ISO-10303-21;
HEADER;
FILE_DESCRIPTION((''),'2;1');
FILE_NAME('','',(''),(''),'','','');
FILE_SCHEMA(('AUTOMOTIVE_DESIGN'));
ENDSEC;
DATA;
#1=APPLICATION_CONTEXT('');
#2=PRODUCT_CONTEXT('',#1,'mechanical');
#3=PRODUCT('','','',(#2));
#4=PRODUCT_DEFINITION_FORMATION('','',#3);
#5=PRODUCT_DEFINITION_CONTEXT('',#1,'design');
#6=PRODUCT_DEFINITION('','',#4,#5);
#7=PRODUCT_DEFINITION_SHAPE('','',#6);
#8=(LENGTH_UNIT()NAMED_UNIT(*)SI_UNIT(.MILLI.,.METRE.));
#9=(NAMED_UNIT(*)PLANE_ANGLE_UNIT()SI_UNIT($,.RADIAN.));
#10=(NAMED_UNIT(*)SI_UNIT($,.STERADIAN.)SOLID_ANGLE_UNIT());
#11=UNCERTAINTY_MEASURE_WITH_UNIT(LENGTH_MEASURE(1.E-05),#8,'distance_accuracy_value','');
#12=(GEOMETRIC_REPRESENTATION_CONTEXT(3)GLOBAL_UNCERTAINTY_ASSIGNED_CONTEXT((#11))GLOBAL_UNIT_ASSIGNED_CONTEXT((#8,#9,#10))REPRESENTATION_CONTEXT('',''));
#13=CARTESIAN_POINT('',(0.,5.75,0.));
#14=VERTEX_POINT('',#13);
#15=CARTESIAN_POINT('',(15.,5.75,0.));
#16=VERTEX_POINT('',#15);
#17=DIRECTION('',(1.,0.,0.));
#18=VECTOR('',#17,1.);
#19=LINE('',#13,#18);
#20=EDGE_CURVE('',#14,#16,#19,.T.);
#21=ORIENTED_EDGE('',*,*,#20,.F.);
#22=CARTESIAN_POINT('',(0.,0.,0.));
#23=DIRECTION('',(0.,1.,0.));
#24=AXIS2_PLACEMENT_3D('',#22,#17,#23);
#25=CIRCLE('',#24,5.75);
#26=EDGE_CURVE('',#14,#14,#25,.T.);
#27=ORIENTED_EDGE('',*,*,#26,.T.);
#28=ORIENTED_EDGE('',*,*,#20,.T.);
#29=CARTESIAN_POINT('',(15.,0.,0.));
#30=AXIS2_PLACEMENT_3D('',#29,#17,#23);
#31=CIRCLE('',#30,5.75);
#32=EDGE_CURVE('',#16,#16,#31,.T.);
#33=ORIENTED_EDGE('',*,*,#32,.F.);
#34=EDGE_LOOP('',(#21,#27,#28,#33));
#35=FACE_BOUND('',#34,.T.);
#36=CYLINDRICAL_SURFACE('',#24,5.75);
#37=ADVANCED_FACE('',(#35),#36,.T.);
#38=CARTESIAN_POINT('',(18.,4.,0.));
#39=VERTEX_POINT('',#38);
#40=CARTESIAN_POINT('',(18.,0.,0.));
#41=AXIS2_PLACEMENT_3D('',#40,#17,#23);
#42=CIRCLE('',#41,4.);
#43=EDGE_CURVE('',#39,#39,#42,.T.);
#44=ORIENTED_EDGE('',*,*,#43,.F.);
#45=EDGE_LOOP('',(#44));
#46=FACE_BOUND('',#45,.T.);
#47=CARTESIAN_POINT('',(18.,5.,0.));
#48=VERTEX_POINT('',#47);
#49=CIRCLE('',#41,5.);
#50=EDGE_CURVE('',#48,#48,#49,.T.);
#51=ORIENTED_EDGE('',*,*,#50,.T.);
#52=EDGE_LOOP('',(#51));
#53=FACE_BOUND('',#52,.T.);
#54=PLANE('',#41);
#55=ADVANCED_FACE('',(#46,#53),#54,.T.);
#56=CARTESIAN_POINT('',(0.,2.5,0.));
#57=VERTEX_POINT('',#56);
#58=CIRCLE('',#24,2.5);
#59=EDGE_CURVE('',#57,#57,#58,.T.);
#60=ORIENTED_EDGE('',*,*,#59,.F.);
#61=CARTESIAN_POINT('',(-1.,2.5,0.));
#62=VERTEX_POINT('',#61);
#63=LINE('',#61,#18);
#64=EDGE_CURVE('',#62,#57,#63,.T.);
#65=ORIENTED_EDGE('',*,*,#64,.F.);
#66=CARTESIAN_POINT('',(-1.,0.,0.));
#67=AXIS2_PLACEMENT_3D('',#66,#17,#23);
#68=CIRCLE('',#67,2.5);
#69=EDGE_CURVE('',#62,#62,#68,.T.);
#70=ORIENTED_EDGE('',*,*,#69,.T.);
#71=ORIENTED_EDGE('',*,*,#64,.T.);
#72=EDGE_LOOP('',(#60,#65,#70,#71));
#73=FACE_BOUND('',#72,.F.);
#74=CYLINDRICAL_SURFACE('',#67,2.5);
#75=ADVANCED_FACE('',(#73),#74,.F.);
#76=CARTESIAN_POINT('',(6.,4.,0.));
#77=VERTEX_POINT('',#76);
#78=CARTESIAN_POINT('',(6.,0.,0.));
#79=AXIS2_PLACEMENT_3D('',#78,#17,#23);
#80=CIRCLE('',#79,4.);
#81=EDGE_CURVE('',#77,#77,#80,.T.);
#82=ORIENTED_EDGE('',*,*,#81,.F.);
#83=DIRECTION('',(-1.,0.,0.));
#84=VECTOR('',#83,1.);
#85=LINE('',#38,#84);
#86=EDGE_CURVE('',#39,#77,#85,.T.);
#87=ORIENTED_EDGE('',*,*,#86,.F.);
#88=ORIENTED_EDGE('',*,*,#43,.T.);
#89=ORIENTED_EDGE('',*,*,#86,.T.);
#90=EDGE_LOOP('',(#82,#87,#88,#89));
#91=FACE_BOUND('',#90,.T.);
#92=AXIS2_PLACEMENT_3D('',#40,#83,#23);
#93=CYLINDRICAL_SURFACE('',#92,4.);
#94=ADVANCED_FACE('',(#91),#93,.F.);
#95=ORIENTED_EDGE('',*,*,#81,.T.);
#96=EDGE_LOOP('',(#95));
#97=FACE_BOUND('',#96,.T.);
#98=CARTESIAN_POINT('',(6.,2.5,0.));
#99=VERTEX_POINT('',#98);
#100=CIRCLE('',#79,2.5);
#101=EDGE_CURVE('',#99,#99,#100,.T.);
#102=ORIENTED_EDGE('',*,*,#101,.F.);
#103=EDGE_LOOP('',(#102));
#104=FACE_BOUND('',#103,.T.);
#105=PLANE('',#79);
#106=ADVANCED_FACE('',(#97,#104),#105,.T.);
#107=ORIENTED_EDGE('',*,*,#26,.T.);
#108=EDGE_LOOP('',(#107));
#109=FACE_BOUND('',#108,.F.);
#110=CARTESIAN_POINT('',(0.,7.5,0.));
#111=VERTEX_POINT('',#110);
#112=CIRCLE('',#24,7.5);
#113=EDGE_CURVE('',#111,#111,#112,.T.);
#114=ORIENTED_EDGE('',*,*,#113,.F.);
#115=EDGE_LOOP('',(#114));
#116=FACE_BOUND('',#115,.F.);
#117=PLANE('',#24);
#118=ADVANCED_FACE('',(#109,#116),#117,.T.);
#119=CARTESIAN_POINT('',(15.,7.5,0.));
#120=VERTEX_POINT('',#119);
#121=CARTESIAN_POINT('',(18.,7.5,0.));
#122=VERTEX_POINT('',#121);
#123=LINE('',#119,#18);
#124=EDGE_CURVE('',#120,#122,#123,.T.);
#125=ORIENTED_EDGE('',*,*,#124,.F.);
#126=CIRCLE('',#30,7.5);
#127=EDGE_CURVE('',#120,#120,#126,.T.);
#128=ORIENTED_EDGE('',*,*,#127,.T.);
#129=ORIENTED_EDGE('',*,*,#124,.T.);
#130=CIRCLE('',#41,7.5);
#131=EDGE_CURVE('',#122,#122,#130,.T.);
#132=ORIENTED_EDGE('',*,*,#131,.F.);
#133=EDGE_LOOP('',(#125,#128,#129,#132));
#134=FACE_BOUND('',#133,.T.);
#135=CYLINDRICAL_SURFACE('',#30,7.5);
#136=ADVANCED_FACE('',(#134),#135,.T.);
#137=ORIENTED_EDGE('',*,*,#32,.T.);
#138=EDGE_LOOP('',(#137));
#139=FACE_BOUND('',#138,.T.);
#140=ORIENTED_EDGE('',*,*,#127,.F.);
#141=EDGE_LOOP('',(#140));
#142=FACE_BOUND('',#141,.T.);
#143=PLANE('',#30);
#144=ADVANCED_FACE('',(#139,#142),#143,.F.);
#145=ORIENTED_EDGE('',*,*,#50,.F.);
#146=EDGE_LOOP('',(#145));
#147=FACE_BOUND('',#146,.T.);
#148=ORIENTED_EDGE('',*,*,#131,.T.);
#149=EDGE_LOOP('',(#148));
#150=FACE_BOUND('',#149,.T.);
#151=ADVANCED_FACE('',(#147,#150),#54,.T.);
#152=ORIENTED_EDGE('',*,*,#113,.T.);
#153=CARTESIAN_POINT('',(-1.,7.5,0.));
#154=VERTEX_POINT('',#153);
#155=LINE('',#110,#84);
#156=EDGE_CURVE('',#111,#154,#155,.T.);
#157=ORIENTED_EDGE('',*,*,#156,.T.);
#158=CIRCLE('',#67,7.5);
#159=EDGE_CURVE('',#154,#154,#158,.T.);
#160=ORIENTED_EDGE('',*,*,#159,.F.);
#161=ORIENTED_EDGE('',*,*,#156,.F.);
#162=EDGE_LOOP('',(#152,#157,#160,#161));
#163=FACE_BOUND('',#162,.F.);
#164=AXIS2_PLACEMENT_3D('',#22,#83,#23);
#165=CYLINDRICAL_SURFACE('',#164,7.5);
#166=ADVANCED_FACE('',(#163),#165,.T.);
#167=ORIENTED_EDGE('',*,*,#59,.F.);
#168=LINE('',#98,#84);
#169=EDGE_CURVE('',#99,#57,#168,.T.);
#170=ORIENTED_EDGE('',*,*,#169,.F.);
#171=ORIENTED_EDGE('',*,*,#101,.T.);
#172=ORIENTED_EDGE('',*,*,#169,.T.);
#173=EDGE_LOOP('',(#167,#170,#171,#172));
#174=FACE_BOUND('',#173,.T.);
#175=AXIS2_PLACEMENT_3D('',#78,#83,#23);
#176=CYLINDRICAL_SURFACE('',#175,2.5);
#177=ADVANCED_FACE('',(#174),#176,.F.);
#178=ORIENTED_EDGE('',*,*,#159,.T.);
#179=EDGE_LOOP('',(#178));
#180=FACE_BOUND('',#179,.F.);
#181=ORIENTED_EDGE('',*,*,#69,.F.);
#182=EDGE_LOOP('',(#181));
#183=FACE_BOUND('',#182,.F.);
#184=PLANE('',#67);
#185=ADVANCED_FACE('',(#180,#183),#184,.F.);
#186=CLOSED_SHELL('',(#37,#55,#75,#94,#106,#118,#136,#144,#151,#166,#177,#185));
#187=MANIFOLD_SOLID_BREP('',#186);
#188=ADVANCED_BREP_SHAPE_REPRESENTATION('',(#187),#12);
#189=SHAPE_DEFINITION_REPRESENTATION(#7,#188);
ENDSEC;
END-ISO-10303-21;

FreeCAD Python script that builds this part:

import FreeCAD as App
import Part
import Sketcher

doc = App.newDocument("Part")
body = doc.addObject("PartDesign::Body", "Body")

# Sketch on XY plane
sketch1 = doc.addObject("Sketcher::SketchObject", "Sketch")
body.addObject(sketch1)
sketch1.AttachmentSupport = (doc.XY_Plane, [""])
sketch1.MapMode = "FlatFace"
sketch1.addGeometry([
    Part.LineSegment(App.Vector(15, 5.8, 0), App.Vector(0, 5.8, 0)),  # 0
    Part.LineSegment(App.Vector(0, 5.8, 0), App.Vector(0, 7.5, 0)),  # 1
    Part.LineSegment(App.Vector(0, 7.5, 0), App.Vector(-1, 7.5, 0)),  # 2
    Part.LineSegment(App.Vector(-1, 7.5, 0), App.Vector(-1, 2.5, 0)),  # 3
    Part.LineSegment(App.Vector(-1, 2.5, 0), App.Vector(6, 2.5, 0)),  # 4
    Part.LineSegment(App.Vector(6, 2.5, 0), App.Vector(6, 4, 0)),  # 5
    Part.LineSegment(App.Vector(6, 4, 0), App.Vector(18, 4, 0)),  # 6
    Part.LineSegment(App.Vector(18, 4, 0), App.Vector(18, 7.5, 0)),  # 7
    Part.LineSegment(App.Vector(18, 7.5, 0), App.Vector(15, 7.5, 0)),  # 8
    Part.LineSegment(App.Vector(15, 7.5, 0), App.Vector(15, 5.8, 0)),  # 9
], False)
sketch1.addConstraint([
    Sketcher.Constraint("Coincident", 0, 2, 1, 1),
    Sketcher.Constraint("Coincident", 1, 2, 2, 1),
    Sketcher.Constraint("Coincident", 2, 2, 3, 1),
    Sketcher.Constraint("Coincident", 3, 2, 4, 1),
    Sketcher.Constraint("Coincident", 4, 2, 5, 1),
    Sketcher.Constraint("Coincident", 5, 2, 6, 1),
    Sketcher.Constraint("Coincident", 6, 2, 7, 1),
    Sketcher.Constraint("Coincident", 7, 2, 8, 1),
    Sketcher.Constraint("Coincident", 8, 2, 9, 1),
    Sketcher.Constraint("Coincident", 9, 2, 0, 1),
    Sketcher.Constraint("Horizontal", 0),
    Sketcher.Constraint("Vertical", 1),
    Sketcher.Constraint("Horizontal", 2),
    Sketcher.Constraint("Vertical", 3),
    Sketcher.Constraint("Horizontal", 4),
    Sketcher.Constraint("Vertical", 5),
    Sketcher.Constraint("Horizontal", 6),
    Sketcher.Constraint("Vertical", 7),
    Sketcher.Constraint("Horizontal", 8),
    Sketcher.Constraint("Vertical", 9),
    Sketcher.Constraint("PointOnObject", 0, 2, -2),
    Sketcher.Constraint("Horizontal", 2, 2, 7, 2),
    Sketcher.Constraint("DistanceX", 0, 2, 0, 1, 15.0),
    Sketcher.Constraint("DistanceX", 2, 2, 2, 1, 1.0),
    Sketcher.Constraint("DistanceX", 6, 1, 6, 2, 12.0),
    Sketcher.Constraint("DistanceY", 5, 1, 5, 2, 1.5),
    Sketcher.Constraint("DistanceY", -1, 1, 5, 2, 4.0),
    Sketcher.Constraint("DistanceY", 1, 1, 1, 2, 1.75),
    Sketcher.Constraint("DistanceX", 4, 1, 4, 2, 7.0),
    Sketcher.Constraint("DistanceY", 3, 2, 3, 1, 5.0),
])
revolution = doc.addObject("PartDesign::Revolution", "Revolution")
body.addObject(revolution)
revolution.Profile = sketch1
revolution.ReferenceAxis = (sketch1, ["H_Axis"])
revolution.Angle = 360

doc.recompute()
